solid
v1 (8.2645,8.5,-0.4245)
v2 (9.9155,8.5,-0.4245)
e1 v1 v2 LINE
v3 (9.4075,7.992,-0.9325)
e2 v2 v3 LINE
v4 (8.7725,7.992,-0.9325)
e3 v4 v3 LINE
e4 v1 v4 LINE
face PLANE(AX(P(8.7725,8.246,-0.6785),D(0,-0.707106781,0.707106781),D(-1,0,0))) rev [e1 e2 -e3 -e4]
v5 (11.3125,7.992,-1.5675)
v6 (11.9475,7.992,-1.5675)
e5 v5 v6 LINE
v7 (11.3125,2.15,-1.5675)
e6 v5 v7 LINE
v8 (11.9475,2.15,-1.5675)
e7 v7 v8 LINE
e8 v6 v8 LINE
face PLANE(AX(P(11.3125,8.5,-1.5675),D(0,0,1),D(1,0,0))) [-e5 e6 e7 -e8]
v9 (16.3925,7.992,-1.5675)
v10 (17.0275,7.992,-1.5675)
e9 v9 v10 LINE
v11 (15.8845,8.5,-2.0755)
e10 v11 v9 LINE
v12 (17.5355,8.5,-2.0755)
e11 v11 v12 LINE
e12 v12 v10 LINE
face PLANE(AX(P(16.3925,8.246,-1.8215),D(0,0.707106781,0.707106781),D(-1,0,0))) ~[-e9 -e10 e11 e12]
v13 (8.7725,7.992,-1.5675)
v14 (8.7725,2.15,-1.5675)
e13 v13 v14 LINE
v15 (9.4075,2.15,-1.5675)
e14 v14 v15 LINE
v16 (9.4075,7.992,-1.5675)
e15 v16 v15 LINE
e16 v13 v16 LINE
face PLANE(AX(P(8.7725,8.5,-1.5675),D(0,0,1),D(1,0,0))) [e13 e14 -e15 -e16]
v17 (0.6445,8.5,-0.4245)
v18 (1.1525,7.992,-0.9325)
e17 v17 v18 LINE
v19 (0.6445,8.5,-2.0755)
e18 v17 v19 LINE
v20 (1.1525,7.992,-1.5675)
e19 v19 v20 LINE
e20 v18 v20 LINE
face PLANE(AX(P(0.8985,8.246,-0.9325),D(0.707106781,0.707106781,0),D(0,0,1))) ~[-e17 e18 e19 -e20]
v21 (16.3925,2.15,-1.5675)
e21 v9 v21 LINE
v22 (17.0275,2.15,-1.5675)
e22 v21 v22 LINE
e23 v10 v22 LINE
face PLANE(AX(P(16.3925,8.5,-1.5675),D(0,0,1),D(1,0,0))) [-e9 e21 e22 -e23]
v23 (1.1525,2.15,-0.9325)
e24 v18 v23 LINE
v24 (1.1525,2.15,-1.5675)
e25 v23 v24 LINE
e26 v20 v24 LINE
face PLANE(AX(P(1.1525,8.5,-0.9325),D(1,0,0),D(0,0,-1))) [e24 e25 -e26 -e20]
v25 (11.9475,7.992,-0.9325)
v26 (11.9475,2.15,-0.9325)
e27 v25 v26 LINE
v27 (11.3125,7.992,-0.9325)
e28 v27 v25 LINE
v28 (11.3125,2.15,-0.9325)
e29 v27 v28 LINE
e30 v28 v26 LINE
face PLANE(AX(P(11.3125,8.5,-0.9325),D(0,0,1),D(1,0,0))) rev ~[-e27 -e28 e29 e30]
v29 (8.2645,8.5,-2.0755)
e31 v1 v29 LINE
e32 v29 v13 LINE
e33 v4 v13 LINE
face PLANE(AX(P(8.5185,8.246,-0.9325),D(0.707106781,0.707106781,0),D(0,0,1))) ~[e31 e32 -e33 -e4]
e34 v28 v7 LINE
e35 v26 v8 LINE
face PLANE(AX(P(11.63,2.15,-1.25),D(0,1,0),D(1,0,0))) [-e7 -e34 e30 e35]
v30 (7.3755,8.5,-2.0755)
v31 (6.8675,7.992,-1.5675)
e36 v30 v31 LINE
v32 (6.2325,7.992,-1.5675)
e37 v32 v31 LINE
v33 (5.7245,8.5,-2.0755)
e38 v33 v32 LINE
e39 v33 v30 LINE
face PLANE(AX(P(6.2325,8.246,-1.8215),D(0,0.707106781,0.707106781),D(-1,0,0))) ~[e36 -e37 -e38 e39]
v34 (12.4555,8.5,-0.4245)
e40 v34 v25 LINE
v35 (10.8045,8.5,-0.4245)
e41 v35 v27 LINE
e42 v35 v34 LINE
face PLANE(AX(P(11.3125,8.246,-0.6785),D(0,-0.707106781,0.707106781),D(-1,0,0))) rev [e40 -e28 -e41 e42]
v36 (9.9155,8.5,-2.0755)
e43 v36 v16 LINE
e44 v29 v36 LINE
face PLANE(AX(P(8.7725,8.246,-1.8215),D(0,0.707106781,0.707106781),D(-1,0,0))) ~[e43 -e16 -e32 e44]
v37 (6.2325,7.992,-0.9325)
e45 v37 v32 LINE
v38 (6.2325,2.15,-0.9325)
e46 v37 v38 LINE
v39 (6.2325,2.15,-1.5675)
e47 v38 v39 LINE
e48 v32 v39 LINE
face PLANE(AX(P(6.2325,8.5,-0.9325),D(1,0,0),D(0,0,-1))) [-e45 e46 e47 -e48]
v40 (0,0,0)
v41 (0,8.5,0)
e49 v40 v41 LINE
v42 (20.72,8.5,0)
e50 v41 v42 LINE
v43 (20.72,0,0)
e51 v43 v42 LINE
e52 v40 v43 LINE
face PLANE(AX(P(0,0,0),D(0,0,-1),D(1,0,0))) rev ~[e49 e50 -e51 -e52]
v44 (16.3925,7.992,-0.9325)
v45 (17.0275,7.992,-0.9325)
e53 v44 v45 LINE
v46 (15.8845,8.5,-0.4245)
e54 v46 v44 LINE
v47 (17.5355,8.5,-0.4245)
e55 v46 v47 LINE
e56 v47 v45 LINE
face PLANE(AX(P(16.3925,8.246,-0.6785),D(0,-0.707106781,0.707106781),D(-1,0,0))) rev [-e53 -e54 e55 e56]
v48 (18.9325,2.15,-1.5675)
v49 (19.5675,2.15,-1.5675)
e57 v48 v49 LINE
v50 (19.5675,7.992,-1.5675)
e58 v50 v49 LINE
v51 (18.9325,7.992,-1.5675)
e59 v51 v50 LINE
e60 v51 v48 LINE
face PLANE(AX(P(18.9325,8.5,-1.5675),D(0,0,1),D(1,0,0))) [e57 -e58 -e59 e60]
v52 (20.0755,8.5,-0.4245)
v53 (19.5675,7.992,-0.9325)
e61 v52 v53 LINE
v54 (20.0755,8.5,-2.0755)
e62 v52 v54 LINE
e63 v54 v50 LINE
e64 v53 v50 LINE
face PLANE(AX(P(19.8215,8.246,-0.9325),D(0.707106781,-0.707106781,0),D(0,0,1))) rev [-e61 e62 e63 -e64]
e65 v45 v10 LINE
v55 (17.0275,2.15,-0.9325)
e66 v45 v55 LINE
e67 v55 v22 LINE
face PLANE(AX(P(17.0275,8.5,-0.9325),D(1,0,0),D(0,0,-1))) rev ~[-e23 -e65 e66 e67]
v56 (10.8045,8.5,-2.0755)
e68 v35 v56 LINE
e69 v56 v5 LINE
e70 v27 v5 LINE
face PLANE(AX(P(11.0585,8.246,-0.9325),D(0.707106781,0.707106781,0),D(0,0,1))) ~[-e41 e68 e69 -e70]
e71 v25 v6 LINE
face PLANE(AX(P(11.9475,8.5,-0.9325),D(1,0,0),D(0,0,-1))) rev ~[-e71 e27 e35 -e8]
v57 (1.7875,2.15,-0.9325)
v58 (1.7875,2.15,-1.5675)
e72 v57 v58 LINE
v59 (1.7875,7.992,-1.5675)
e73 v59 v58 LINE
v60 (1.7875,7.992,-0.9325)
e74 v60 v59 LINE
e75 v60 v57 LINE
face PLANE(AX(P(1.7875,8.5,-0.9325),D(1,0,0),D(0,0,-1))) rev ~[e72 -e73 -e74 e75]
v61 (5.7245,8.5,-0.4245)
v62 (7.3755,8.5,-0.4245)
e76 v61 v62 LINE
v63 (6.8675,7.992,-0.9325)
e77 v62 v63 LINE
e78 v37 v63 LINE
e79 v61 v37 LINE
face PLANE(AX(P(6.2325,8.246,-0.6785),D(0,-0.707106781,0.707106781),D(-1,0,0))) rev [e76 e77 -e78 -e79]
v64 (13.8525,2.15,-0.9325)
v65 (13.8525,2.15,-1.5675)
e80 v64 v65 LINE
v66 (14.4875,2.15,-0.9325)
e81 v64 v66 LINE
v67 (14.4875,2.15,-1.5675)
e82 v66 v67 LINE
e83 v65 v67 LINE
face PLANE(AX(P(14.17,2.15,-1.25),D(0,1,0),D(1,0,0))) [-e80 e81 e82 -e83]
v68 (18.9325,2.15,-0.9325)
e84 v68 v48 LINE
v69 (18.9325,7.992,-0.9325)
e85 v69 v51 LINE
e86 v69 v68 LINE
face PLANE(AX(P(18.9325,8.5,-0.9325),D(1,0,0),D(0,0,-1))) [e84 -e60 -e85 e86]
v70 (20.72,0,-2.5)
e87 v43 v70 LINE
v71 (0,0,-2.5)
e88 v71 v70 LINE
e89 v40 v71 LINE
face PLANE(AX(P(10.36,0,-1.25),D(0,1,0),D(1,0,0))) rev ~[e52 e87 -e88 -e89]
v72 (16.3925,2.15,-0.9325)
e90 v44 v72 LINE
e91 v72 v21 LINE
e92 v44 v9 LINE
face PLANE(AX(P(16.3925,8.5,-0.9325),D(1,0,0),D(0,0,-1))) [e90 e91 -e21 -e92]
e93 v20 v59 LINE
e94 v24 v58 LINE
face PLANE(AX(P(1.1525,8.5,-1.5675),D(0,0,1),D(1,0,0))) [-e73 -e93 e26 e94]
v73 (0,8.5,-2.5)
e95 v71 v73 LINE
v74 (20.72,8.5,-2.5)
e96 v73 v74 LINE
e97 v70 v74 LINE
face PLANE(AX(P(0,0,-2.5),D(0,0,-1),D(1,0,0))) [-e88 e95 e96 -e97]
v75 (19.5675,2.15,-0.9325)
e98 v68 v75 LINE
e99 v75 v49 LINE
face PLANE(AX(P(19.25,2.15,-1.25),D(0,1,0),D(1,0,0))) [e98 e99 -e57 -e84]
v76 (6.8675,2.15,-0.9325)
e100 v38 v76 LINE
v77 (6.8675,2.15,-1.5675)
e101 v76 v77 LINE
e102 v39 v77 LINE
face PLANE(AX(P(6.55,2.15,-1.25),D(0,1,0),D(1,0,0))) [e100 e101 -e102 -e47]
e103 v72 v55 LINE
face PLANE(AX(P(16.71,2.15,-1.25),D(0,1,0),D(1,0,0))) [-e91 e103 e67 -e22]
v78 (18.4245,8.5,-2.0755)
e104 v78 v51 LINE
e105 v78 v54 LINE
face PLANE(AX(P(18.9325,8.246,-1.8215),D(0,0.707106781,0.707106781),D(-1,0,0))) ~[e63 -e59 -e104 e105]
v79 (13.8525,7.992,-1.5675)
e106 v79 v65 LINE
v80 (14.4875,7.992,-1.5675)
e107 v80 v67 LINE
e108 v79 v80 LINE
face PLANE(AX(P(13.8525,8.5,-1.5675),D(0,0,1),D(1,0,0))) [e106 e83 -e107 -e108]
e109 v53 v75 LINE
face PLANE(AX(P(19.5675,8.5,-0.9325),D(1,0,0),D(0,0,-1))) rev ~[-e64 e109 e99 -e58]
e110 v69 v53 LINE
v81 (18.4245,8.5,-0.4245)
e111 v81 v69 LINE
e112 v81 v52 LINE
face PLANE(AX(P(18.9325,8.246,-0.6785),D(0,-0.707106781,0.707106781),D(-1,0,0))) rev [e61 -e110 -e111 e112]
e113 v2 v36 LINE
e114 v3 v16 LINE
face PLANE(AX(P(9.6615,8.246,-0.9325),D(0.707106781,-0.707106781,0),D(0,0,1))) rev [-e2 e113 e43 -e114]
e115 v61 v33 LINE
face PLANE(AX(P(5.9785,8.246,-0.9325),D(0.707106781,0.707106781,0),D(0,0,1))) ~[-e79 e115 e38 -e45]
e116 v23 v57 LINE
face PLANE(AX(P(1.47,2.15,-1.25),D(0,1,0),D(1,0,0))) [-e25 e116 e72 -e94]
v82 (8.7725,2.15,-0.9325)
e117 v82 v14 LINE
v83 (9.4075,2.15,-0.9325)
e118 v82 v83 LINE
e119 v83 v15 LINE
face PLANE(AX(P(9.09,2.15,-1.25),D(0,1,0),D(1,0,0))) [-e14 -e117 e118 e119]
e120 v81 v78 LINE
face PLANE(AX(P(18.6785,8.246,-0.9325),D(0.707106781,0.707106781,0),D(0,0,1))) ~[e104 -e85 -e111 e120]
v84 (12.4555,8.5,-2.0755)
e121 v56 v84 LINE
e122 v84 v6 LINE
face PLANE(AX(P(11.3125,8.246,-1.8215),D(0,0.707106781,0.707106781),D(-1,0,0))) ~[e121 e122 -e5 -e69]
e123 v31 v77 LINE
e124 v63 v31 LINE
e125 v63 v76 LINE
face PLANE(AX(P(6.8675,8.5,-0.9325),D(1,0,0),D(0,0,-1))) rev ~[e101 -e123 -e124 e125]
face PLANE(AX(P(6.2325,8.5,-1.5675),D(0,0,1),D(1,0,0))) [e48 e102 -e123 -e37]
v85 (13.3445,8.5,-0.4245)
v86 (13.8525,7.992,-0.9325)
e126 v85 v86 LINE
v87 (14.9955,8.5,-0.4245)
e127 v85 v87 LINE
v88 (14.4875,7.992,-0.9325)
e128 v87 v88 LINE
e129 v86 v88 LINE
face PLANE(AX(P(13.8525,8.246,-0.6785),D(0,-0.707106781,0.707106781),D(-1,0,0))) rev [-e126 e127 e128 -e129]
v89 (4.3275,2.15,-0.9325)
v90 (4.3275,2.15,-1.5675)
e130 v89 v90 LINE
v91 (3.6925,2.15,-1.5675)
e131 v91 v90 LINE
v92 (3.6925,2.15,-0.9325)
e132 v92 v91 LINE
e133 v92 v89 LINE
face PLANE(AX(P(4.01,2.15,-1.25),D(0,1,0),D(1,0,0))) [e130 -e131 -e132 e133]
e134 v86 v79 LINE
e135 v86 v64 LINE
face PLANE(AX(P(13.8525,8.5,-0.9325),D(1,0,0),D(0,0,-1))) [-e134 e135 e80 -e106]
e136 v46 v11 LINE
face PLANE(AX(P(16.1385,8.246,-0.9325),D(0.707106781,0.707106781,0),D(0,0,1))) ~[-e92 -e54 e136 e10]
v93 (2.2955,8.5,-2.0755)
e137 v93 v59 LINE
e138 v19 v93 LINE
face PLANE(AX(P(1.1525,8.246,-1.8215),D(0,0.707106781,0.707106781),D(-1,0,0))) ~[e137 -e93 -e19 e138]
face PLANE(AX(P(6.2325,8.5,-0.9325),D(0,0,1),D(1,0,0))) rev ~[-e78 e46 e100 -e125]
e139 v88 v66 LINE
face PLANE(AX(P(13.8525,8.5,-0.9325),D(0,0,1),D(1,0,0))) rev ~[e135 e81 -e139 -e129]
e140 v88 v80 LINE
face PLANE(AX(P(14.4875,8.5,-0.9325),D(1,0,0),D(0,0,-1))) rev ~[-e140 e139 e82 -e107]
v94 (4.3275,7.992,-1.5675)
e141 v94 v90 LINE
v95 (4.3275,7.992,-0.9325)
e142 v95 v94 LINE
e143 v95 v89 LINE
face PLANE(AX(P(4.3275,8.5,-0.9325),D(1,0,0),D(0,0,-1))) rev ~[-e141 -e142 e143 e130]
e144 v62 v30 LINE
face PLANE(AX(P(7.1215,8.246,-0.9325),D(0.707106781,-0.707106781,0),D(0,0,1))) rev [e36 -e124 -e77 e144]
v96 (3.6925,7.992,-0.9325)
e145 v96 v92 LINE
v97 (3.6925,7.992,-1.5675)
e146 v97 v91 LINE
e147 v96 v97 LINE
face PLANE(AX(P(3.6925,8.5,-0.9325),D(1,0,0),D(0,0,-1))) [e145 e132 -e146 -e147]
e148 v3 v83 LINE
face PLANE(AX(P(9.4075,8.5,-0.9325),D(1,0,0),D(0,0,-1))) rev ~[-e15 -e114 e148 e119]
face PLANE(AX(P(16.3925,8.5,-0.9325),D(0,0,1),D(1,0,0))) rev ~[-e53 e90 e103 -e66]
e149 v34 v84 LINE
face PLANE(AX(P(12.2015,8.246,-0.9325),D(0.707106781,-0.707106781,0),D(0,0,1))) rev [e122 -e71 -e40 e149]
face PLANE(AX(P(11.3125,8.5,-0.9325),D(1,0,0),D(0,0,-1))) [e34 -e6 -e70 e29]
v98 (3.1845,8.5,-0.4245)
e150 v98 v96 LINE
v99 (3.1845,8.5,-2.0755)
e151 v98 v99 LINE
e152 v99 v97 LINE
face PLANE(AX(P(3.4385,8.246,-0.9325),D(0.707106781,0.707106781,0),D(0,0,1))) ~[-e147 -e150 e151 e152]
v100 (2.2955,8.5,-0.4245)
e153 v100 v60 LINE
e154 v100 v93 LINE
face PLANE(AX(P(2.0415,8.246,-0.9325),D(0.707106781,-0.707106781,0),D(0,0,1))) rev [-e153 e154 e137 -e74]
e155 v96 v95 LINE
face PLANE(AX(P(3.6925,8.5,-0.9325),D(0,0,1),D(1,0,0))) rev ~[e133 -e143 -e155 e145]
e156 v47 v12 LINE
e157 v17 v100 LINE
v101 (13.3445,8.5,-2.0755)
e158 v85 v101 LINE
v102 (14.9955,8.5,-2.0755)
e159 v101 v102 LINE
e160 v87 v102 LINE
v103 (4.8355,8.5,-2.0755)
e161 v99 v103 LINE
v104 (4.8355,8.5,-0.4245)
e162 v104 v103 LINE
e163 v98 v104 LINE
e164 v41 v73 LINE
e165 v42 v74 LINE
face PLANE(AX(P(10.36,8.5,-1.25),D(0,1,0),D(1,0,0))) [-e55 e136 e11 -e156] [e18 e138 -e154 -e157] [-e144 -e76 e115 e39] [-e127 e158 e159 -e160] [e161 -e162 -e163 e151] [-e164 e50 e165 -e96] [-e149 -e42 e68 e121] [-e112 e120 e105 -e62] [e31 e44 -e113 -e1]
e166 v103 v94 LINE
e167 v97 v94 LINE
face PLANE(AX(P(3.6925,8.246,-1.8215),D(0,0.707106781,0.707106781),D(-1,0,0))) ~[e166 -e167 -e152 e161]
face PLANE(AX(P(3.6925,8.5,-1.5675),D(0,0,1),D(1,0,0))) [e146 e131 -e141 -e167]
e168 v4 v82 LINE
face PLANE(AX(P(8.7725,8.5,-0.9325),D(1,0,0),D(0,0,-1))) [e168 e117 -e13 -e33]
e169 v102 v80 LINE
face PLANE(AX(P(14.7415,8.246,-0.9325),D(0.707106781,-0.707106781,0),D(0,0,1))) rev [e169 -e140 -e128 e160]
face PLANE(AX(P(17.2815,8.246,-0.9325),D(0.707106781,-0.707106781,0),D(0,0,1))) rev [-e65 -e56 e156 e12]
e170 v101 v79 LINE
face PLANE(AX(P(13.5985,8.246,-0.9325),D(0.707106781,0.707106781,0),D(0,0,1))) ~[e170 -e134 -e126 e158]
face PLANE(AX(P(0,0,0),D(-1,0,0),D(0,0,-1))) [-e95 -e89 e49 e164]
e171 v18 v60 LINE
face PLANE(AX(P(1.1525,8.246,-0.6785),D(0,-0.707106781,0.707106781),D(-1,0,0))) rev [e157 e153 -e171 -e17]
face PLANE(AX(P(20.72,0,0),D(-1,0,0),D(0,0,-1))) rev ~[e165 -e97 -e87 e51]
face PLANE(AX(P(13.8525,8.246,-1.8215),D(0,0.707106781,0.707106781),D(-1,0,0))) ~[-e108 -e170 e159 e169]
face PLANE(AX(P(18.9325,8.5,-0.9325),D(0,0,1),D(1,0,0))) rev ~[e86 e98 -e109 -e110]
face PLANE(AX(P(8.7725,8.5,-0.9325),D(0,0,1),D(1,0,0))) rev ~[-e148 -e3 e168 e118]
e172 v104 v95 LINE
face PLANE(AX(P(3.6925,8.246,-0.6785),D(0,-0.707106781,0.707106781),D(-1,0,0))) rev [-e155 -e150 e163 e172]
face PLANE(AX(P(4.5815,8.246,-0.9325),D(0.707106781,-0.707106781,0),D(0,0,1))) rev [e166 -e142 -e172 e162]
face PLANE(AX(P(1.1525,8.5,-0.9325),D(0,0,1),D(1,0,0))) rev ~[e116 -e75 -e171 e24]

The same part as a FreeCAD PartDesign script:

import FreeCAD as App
import Part
import Sketcher
Q = App.Units.Quantity


def edges_at(feature, points):
    """Names of the edges that pass closest to the given points."""
    edges = feature.Shape.Edges
    near = lambda p: min(range(len(edges)), key=lambda i: edges[i].distToShape(Part.Vertex(*p))[0])
    return sorted({f"Edge{near(p) + 1}" for p in points})


def add_polygon(sketch, points):
    """Adds a closed chain of lines whose ends are joined by coincident constraints."""
    first, n = sketch.GeometryCount, len(points)
    for a, b in zip(points, points[1:] + points[:1]):
        sketch.addGeometry(Part.LineSegment(App.Vector(*a, 0), App.Vector(*b, 0)), False)
    for i in range(n):
        sketch.addConstraint(Sketcher.Constraint("Coincident", first + i, 2, first + (i + 1) % n, 1))

doc = App.newDocument("Part")
params = doc.addObject("Spreadsheet::Sheet", "Params")
for row, (alias, value) in enumerate([
    ("pad1_length", "8.5 mm"),
    ("sketch2_width", "0.025 in"),
    ("pocket1_length", "0.25 in"),
    ("chamfer_size", "0.02 in"),
    ("linearpattern_pitch", "0.1 in"),
    ("chamfer2_size", "0.02 in"),
], start=1):
    params.set(f"A{row}", alias)
    params.set(f"B{row}", "=" + value)
    params.setAlias(f"B{row}", alias)

body = doc.addObject("PartDesign::Body", "Body")

# Sketch on XZ plane
sketch1 = doc.addObject("Sketcher::SketchObject", "Sketch")
body.addObject(sketch1)
sketch1.AttachmentSupport = (doc.XZ_Plane, [""])
sketch1.MapMode = "FlatFace"
add_polygon(sketch1, [(0, -2.5), (0, 0), (20.7, 0), (20.7, -2.5)])  # lines 0-3
sketch1.addConstraint([
    Sketcher.Constraint("Vertical", 0),
    Sketcher.Constraint("Horizontal", 1),
    Sketcher.Constraint("Vertical", 2),
    Sketcher.Constraint("Horizontal", 3),
    Sketcher.Constraint("Coincident", 0, 2, -1, 1),
    Sketcher.Constraint("DistanceX", 1, 1, 1, 2, Q("20.72 mm")),
    Sketcher.Constraint("DistanceY", 0, 1, 0, 2, Q("2.5 mm")),
])
pad1 = doc.addObject("PartDesign::Pad", "Pad")
body.addObject(pad1)
pad1.Profile = sketch1
pad1.setExpression("Length", "Params.pad1_length")
pad1.Reversed = True

# Sketch on XZ plane
sketch2 = doc.addObject("Sketcher::SketchObject", "Sketch001")
body.addObject(sketch2)
sketch2.AttachmentSupport = (doc.XZ_Plane, [""])
sketch2.MapMode = "FlatFace"
sketch2.AttachmentOffset = App.Placement(App.Vector(0, 0, -8.5), App.Rotation())
add_polygon(sketch2, [(1.2, -1.6), (1.2, -0.9), (1.8, -0.9), (1.8, -1.6)])  # lines 0-3
sketch2.addConstraint([
    Sketcher.Constraint("Vertical", 0),
    Sketcher.Constraint("Horizontal", 1),
    Sketcher.Constraint("Vertical", 2),
    Sketcher.Constraint("Horizontal", 3),
    Sketcher.Constraint("Equal", 3, 0),
    Sketcher.Constraint("DistanceX", 1, 1, 1, 2, Q("0.025 in")),
    Sketcher.Constraint("DistanceX", -1, 1, 0, 2, Q("1.1525 mm")),
    Sketcher.Constraint("DistanceY", 0, 2, -1, 1, Q("0.9325 mm")),
])
sketch2.setExpression("Constraints[9]", "Params.sketch2_width")
pocket1 = doc.addObject("PartDesign::Pocket", "Pocket")
body.addObject(pocket1)
pocket1.Profile = sketch2
pocket1.setExpression("Length", "Params.pocket1_length")
pocket1.Reversed = True
doc.recompute()

chamfer = doc.addObject("PartDesign::Chamfer", "Chamfer")
body.addObject(chamfer)
chamfer.Base = (pocket1, edges_at(pocket1, [
    (1.788, 8.5, -1.25),
    (1.47, 8.5, -1.567),
    (1.153, 8.5, -1.25),
    (1.47, 8.5, -0.932),
]))
chamfer.setExpression("Size", "Params.chamfer_size")
doc.recompute()

linearpattern = doc.addObject("PartDesign::LinearPattern", "LinearPattern")
body.addObject(linearpattern)
linearpattern.Originals = [pocket1]
linearpattern.Direction = (doc.X_Axis, [""])
linearpattern.Mode = "offset"
linearpattern.setExpression("Offset", "Params.linearpattern_pitch")
linearpattern.Occurrences = 8
body.Tip = linearpattern
doc.recompute()

chamfer2 = doc.addObject("PartDesign::Chamfer", "Chamfer001")
body.addObject(chamfer2)
chamfer2.Base = (linearpattern, edges_at(linearpattern, [
    (4.327, 8.5, -1.25),
    (4.01, 8.5, -1.567),
    (3.692, 8.5, -1.25),
    (4.01, 8.5, -0.932),
    (6.867, 8.5, -1.25),
    (6.55, 8.5, -1.567),
    (6.232, 8.5, -1.25),
    (6.55, 8.5, -0.932),
    (9.408, 8.5, -1.25),
    (9.09, 8.5, -1.567),
    (8.773, 8.5, -1.25),
    (9.09, 8.5, -0.932),
    (11.947, 8.5, -1.25),
    (11.63, 8.5, -1.567),
    (11.312, 8.5, -1.25),
    (11.63, 8.5, -0.932),
    (14.488, 8.5, -1.25),
    (14.17, 8.5, -1.567),
    (13.852, 8.5, -1.25),
    (14.17, 8.5, -0.932),
    (17.027, 8.5, -1.25),
    (16.71, 8.5, -1.567),
    (16.392, 8.5, -1.25),
    (16.71, 8.5, -0.932),
    (19.567, 8.5, -1.25),
    (19.25, 8.5, -1.567),
    (18.933, 8.5, -1.25),
    (19.25, 8.5, -0.932),
]))
chamfer2.setExpression("Size", "Params.chamfer2_size")

doc.recompute()
